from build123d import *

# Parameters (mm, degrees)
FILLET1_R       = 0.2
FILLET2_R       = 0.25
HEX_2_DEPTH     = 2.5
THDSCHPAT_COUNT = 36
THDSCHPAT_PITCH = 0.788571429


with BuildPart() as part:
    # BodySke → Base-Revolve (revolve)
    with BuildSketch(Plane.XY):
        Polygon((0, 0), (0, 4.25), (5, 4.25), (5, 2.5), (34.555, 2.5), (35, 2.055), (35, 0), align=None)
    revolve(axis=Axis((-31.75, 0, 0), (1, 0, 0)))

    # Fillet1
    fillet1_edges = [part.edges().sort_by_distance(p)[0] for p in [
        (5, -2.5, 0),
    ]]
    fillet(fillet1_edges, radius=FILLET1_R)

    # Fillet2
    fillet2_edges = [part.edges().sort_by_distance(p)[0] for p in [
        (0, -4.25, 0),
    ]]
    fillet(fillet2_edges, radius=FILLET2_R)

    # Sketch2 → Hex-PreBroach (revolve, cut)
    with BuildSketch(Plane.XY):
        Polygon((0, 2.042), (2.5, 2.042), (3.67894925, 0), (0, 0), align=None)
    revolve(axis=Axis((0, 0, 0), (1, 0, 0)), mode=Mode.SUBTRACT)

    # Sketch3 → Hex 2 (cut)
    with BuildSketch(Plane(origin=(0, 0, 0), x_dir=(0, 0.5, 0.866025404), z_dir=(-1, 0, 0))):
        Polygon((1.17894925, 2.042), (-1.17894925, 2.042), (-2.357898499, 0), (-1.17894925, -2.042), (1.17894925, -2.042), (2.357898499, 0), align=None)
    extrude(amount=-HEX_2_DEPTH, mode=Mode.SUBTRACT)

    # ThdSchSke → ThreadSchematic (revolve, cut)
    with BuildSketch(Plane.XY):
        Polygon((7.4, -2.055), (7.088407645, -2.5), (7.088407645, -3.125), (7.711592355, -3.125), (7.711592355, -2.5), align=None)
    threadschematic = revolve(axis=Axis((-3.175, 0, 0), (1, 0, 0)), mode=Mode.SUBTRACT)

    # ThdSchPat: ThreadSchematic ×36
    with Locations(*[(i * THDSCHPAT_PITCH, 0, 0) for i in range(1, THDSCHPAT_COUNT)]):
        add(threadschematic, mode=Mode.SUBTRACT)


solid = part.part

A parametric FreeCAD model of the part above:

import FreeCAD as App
import Part
import Sketcher
Q = App.Units.Quantity


def edges_at(feature, points):
    """Names of the edges that pass closest to the given points."""
    edges = feature.Shape.Edges
    near = lambda p: min(range(len(edges)), key=lambda i: edges[i].distToShape(Part.Vertex(*p))[0])
    return sorted({f"Edge{near(p) + 1}" for p in points})

doc = App.newDocument("Part")
body = doc.addObject("PartDesign::Body", "Body")

# Sketch on XY plane
sketch1 = body.newObject("Sketcher::SketchObject", "Sketch")
sketch1.AttachmentSupport = (doc.getObject("XY_Plane"), [""])
sketch1.MapMode = "FlatFace"
sketch1.addGeometry(Part.LineSegment(App.Vector(0, 4.2, 0), App.Vector(0, 0, 0)), False)
sketch1.addGeometry(Part.LineSegment(App.Vector(0, 0, 0), App.Vector(35, 0, 0)), False)
sketch1.addGeometry(Part.LineSegment(App.Vector(35, 0, 0), App.Vector(35, 2.1, 0)), False)
sketch1.addGeometry(Part.LineSegment(App.Vector(35, 2.1, 0), App.Vector(34.6, 2.5, 0)), False)
sketch1.addGeometry(Part.LineSegment(App.Vector(34.6, 2.5, 0), App.Vector(5, 2.5, 0)), False)
sketch1.addGeometry(Part.LineSegment(App.Vector(5, 2.5, 0), App.Vector(5, 4.2, 0)), False)
sketch1.addGeometry(Part.LineSegment(App.Vector(5, 4.2, 0), App.Vector(0, 4.2, 0)), False)
sketch1.addConstraint(Sketcher.Constraint("Coincident", 0, 2, 1, 1))
sketch1.addConstraint(Sketcher.Constraint("Coincident", 1, 2, 2, 1))
sketch1.addConstraint(Sketcher.Constraint("Coincident", 2, 2, 3, 1))
sketch1.addConstraint(Sketcher.Constraint("Coincident", 3, 2, 4, 1))
sketch1.addConstraint(Sketcher.Constraint("Coincident", 4, 2, 5, 1))
sketch1.addConstraint(Sketcher.Constraint("Coincident", 5, 2, 6, 1))
sketch1.addConstraint(Sketcher.Constraint("Coincident", 6, 2, 0, 1))
sketch1.addConstraint(Sketcher.Constraint("Vertical", 0))
sketch1.addConstraint(Sketcher.Constraint("Horizontal", 1))
sketch1.addConstraint(Sketcher.Constraint("Vertical", 2))
sketch1.addConstraint(Sketcher.Constraint("Horizontal", 4))
sketch1.addConstraint(Sketcher.Constraint("Vertical", 5))
sketch1.addConstraint(Sketcher.Constraint("Horizontal", 6))
sketch1.addConstraint(Sketcher.Constraint("Coincident", 0, 2, -1, 1))
sketch1.addConstraint(Sketcher.Constraint("DistanceX", 1, 1, 1, 2, Q("35 mm")))
sketch1.addConstraint(Sketcher.Constraint("DistanceX", 6, 2, 6, 1, Q("5 mm")))
sketch1.addConstraint(Sketcher.Constraint("Angle", 3, Q("135 deg")))
sketch1.addConstraint(Sketcher.Constraint("DistanceY", 0, 2, 0, 1, Q("4.25 mm")))
sketch1.addConstraint(Sketcher.Constraint("DistanceY", 5, 1, 5, 2, Q("1.75 mm")))
sketch1.addConstraint(Sketcher.Constraint("DistanceX", 4, 2, 4, 1, Q("29.555 mm")))
revolution = body.newObject("PartDesign::Revolution", "Revolution")
revolution.Profile = sketch1
revolution.ReferenceAxis = (sketch1, ["H_Axis"])
revolution.Angle = 360
doc.recompute()

fillet = body.newObject("PartDesign::Fillet", "Fillet")
fillet.Base = (revolution, edges_at(revolution, [(5, -2.5, 0)]))
fillet.Radius = 0.2
doc.recompute()

fillet2 = body.newObject("PartDesign::Fillet", "Fillet001")
fillet2.Base = (fillet, edges_at(fillet, [(0, -4.25, 0)]))
fillet2.Radius = 0.25

# Sketch on XY plane
sketch2 = body.newObject("Sketcher::SketchObject", "Sketch001")
sketch2.AttachmentSupport = (doc.getObject("XY_Plane"), [""])
sketch2.MapMode = "FlatFace"
sketch2.addGeometry(Part.LineSegment(App.Vector(2.5, 2, 0), App.Vector(0, 2, 0)), False)
sketch2.addGeometry(Part.LineSegment(App.Vector(0, 2, 0), App.Vector(0, 0, 0)), False)
sketch2.addGeometry(Part.LineSegment(App.Vector(0, 0, 0), App.Vector(3.7, 0, 0)), False)
sketch2.addGeometry(Part.LineSegment(App.Vector(3.7, 0, 0), App.Vector(2.5, 2, 0)), False)
sketch2.addConstraint(Sketcher.Constraint("Coincident", 0, 2, 1, 1))
sketch2.addConstraint(Sketcher.Constraint("Coincident", 1, 2, 2, 1))
sketch2.addConstraint(Sketcher.Constraint("Coincident", 2, 2, 3, 1))
sketch2.addConstraint(Sketcher.Constraint("Coincident", 3, 2, 0, 1))
sketch2.addConstraint(Sketcher.Constraint("Horizontal", 0))
sketch2.addConstraint(Sketcher.Constraint("Vertical", 1))
sketch2.addConstraint(Sketcher.Constraint("Horizontal", 2))
sketch2.addConstraint(Sketcher.Constraint("Coincident", 1, 2, -1, 1))
sketch2.addConstraint(Sketcher.Constraint("Angle", 3, Q("120 deg")))
sketch2.addConstraint(Sketcher.Constraint("DistanceX", 0, 2, 0, 1, Q("2.5 mm")))
sketch2.addConstraint(Sketcher.Constraint("DistanceY", 1, 2, 1, 1, Q("2.042 mm")))
groove = body.newObject("PartDesign::Groove", "Groove")
groove.Profile = sketch2
groove.ReferenceAxis = (sketch2, ["H_Axis"])
groove.Angle = 360

# Sketch on YZ plane
sketch3 = body.newObject("Sketcher::SketchObject", "Sketch002")
sketch3.AttachmentSupport = (doc.getObject("YZ_Plane"), [""])
sketch3.MapMode = "FlatFace"
sketch3.addGeometry(Part.LineSegment(App.Vector(2.4, 0, 0), App.Vector(1.2, -2, 0)), False)
sketch3.addGeometry(Part.LineSegment(App.Vector(1.2, -2, 0), App.Vector(-1.2, -2, 0)), False)
sketch3.addGeometry(Part.LineSegment(App.Vector(-1.2, -2, 0), App.Vector(-2.4, 0, 0)), False)
sketch3.addGeometry(Part.LineSegment(App.Vector(-2.4, 0, 0), App.Vector(-1.2, 2, 0)), False)
sketch3.addGeometry(Part.LineSegment(App.Vector(-1.2, 2, 0), App.Vector(1.2, 2, 0)), False)
sketch3.addGeometry(Part.LineSegment(App.Vector(1.2, 2, 0), App.Vector(2.4, 0, 0)), False)
sketch3.addConstraint(Sketcher.Constraint("Coincident", 0, 2, 1, 1))
sketch3.addConstraint(Sketcher.Constraint("Coincident", 1, 2, 2, 1))
sketch3.addConstraint(Sketcher.Constraint("Coincident", 2, 2, 3, 1))
sketch3.addConstraint(Sketcher.Constraint("Coincident", 3, 2, 4, 1))
sketch3.addConstraint(Sketcher.Constraint("Coincident", 4, 2, 5, 1))
sketch3.addConstraint(Sketcher.Constraint("Coincident", 5, 2, 0, 1))
sketch3.addConstraint(Sketcher.Constraint("Horizontal", 1))
sketch3.addConstraint(Sketcher.Constraint("Horizontal", 4))
sketch3.addConstraint(Sketcher.Constraint("Symmetric", 0, 2, 3, 2, -1, 1))
sketch3.addConstraint(Sketcher.Constraint("Symmetric", 2, 2, 5, 2, -1, 1))
sketch3.addConstraint(Sketcher.Constraint("PointOnObject", 2, 2, -1))
sketch3.addConstraint(Sketcher.Constraint("Parallel", 2, 5))
sketch3.addConstraint(Sketcher.Constraint("Vertical", 1, 2, 3, 2))
sketch3.addConstraint(Sketcher.Constraint("Angle", 0, Q("-120 deg")))
sketch3.addConstraint(Sketcher.Constraint("DistanceX", 1, 2, 1, 1, Q("2.357899 mm")))
sketch3.addConstraint(Sketcher.Constraint("DistanceY", 0, 2, -1, 1, Q("2.042 mm")))
pocket1 = body.newObject("PartDesign::Pocket", "Pocket")
pocket1.Profile = sketch3
pocket1.Length = 2.5
pocket1.Reversed = True

# Sketch on XY plane
sketch4 = body.newObject("Sketcher::SketchObject", "Sketch003")
sketch4.AttachmentSupport = (doc.getObject("XY_Plane"), [""])
sketch4.MapMode = "FlatFace"
sketch4.addGeometry(Part.LineSegment(App.Vector(7.4, -2.1, 0), App.Vector(7.1, -2.5, 0)), False)
sketch4.addGeometry(Part.LineSegment(App.Vector(7.1, -2.5, 0), App.Vector(7.1, -3.1, 0)), False)
sketch4.addGeometry(Part.LineSegment(App.Vector(7.1, -3.1, 0), App.Vector(7.7, -3.1, 0)), False)
sketch4.addGeometry(Part.LineSegment(App.Vector(7.7, -3.1, 0), App.Vector(7.7, -2.5, 0)), False)
sketch4.addGeometry(Part.LineSegment(App.Vector(7.7, -2.5, 0), App.Vector(7.4, -2.1, 0)), False)
sketch4.addConstraint(Sketcher.Constraint("Coincident", 0, 2, 1, 1))
sketch4.addConstraint(Sketcher.Constraint("Coincident", 1, 2, 2, 1))
sketch4.addConstraint(Sketcher.Constraint("Coincident", 2, 2, 3, 1))
sketch4.addConstraint(Sketcher.Constraint("Coincident", 3, 2, 4, 1))
sketch4.addConstraint(Sketcher.Constraint("Coincident", 4, 2, 0, 1))
sketch4.addConstraint(Sketcher.Constraint("Vertical", 1))
sketch4.addConstraint(Sketcher.Constraint("Horizontal", 2))
sketch4.addConstraint(Sketcher.Constraint("Vertical", 3))
sketch4.addConstraint(Sketcher.Constraint("Horizontal", 0, 2, 3, 2))
sketch4.addConstraint(Sketcher.Constraint("Equal", 0, 4))
sketch4.addConstraint(Sketcher.Constraint("Angle", 0, Q("-125 deg")))
sketch4.addConstraint(Sketcher.Constraint("DistanceY", 0, 2, -1, 1, Q("2.5 mm")))
sketch4.addConstraint(Sketcher.Constraint("DistanceX", -1, 1, 4, 2, Q("7.4 mm")))
sketch4.addConstraint(Sketcher.Constraint("DistanceY", 1, 2, 1, 1, Q("0.625 mm")))
sketch4.addConstraint(Sketcher.Constraint("DistanceY", 2, 2, 4, 2, Q("1.07 mm")))
groove2 = body.newObject("PartDesign::Groove", "Groove001")
groove2.Profile = sketch4
groove2.ReferenceAxis = (sketch4, ["H_Axis"])
groove2.Angle = 360
doc.recompute()

linearpattern = body.newObject("PartDesign::LinearPattern", "LinearPattern")
linearpattern.Originals = [groove2]
linearpattern.Direction = (doc.getObject("X_Axis"), [""])
linearpattern.Mode = "offset"
linearpattern.Offset = 0.788571
linearpattern.Occurrences = 36
body.Tip = linearpattern

doc.recompute()
